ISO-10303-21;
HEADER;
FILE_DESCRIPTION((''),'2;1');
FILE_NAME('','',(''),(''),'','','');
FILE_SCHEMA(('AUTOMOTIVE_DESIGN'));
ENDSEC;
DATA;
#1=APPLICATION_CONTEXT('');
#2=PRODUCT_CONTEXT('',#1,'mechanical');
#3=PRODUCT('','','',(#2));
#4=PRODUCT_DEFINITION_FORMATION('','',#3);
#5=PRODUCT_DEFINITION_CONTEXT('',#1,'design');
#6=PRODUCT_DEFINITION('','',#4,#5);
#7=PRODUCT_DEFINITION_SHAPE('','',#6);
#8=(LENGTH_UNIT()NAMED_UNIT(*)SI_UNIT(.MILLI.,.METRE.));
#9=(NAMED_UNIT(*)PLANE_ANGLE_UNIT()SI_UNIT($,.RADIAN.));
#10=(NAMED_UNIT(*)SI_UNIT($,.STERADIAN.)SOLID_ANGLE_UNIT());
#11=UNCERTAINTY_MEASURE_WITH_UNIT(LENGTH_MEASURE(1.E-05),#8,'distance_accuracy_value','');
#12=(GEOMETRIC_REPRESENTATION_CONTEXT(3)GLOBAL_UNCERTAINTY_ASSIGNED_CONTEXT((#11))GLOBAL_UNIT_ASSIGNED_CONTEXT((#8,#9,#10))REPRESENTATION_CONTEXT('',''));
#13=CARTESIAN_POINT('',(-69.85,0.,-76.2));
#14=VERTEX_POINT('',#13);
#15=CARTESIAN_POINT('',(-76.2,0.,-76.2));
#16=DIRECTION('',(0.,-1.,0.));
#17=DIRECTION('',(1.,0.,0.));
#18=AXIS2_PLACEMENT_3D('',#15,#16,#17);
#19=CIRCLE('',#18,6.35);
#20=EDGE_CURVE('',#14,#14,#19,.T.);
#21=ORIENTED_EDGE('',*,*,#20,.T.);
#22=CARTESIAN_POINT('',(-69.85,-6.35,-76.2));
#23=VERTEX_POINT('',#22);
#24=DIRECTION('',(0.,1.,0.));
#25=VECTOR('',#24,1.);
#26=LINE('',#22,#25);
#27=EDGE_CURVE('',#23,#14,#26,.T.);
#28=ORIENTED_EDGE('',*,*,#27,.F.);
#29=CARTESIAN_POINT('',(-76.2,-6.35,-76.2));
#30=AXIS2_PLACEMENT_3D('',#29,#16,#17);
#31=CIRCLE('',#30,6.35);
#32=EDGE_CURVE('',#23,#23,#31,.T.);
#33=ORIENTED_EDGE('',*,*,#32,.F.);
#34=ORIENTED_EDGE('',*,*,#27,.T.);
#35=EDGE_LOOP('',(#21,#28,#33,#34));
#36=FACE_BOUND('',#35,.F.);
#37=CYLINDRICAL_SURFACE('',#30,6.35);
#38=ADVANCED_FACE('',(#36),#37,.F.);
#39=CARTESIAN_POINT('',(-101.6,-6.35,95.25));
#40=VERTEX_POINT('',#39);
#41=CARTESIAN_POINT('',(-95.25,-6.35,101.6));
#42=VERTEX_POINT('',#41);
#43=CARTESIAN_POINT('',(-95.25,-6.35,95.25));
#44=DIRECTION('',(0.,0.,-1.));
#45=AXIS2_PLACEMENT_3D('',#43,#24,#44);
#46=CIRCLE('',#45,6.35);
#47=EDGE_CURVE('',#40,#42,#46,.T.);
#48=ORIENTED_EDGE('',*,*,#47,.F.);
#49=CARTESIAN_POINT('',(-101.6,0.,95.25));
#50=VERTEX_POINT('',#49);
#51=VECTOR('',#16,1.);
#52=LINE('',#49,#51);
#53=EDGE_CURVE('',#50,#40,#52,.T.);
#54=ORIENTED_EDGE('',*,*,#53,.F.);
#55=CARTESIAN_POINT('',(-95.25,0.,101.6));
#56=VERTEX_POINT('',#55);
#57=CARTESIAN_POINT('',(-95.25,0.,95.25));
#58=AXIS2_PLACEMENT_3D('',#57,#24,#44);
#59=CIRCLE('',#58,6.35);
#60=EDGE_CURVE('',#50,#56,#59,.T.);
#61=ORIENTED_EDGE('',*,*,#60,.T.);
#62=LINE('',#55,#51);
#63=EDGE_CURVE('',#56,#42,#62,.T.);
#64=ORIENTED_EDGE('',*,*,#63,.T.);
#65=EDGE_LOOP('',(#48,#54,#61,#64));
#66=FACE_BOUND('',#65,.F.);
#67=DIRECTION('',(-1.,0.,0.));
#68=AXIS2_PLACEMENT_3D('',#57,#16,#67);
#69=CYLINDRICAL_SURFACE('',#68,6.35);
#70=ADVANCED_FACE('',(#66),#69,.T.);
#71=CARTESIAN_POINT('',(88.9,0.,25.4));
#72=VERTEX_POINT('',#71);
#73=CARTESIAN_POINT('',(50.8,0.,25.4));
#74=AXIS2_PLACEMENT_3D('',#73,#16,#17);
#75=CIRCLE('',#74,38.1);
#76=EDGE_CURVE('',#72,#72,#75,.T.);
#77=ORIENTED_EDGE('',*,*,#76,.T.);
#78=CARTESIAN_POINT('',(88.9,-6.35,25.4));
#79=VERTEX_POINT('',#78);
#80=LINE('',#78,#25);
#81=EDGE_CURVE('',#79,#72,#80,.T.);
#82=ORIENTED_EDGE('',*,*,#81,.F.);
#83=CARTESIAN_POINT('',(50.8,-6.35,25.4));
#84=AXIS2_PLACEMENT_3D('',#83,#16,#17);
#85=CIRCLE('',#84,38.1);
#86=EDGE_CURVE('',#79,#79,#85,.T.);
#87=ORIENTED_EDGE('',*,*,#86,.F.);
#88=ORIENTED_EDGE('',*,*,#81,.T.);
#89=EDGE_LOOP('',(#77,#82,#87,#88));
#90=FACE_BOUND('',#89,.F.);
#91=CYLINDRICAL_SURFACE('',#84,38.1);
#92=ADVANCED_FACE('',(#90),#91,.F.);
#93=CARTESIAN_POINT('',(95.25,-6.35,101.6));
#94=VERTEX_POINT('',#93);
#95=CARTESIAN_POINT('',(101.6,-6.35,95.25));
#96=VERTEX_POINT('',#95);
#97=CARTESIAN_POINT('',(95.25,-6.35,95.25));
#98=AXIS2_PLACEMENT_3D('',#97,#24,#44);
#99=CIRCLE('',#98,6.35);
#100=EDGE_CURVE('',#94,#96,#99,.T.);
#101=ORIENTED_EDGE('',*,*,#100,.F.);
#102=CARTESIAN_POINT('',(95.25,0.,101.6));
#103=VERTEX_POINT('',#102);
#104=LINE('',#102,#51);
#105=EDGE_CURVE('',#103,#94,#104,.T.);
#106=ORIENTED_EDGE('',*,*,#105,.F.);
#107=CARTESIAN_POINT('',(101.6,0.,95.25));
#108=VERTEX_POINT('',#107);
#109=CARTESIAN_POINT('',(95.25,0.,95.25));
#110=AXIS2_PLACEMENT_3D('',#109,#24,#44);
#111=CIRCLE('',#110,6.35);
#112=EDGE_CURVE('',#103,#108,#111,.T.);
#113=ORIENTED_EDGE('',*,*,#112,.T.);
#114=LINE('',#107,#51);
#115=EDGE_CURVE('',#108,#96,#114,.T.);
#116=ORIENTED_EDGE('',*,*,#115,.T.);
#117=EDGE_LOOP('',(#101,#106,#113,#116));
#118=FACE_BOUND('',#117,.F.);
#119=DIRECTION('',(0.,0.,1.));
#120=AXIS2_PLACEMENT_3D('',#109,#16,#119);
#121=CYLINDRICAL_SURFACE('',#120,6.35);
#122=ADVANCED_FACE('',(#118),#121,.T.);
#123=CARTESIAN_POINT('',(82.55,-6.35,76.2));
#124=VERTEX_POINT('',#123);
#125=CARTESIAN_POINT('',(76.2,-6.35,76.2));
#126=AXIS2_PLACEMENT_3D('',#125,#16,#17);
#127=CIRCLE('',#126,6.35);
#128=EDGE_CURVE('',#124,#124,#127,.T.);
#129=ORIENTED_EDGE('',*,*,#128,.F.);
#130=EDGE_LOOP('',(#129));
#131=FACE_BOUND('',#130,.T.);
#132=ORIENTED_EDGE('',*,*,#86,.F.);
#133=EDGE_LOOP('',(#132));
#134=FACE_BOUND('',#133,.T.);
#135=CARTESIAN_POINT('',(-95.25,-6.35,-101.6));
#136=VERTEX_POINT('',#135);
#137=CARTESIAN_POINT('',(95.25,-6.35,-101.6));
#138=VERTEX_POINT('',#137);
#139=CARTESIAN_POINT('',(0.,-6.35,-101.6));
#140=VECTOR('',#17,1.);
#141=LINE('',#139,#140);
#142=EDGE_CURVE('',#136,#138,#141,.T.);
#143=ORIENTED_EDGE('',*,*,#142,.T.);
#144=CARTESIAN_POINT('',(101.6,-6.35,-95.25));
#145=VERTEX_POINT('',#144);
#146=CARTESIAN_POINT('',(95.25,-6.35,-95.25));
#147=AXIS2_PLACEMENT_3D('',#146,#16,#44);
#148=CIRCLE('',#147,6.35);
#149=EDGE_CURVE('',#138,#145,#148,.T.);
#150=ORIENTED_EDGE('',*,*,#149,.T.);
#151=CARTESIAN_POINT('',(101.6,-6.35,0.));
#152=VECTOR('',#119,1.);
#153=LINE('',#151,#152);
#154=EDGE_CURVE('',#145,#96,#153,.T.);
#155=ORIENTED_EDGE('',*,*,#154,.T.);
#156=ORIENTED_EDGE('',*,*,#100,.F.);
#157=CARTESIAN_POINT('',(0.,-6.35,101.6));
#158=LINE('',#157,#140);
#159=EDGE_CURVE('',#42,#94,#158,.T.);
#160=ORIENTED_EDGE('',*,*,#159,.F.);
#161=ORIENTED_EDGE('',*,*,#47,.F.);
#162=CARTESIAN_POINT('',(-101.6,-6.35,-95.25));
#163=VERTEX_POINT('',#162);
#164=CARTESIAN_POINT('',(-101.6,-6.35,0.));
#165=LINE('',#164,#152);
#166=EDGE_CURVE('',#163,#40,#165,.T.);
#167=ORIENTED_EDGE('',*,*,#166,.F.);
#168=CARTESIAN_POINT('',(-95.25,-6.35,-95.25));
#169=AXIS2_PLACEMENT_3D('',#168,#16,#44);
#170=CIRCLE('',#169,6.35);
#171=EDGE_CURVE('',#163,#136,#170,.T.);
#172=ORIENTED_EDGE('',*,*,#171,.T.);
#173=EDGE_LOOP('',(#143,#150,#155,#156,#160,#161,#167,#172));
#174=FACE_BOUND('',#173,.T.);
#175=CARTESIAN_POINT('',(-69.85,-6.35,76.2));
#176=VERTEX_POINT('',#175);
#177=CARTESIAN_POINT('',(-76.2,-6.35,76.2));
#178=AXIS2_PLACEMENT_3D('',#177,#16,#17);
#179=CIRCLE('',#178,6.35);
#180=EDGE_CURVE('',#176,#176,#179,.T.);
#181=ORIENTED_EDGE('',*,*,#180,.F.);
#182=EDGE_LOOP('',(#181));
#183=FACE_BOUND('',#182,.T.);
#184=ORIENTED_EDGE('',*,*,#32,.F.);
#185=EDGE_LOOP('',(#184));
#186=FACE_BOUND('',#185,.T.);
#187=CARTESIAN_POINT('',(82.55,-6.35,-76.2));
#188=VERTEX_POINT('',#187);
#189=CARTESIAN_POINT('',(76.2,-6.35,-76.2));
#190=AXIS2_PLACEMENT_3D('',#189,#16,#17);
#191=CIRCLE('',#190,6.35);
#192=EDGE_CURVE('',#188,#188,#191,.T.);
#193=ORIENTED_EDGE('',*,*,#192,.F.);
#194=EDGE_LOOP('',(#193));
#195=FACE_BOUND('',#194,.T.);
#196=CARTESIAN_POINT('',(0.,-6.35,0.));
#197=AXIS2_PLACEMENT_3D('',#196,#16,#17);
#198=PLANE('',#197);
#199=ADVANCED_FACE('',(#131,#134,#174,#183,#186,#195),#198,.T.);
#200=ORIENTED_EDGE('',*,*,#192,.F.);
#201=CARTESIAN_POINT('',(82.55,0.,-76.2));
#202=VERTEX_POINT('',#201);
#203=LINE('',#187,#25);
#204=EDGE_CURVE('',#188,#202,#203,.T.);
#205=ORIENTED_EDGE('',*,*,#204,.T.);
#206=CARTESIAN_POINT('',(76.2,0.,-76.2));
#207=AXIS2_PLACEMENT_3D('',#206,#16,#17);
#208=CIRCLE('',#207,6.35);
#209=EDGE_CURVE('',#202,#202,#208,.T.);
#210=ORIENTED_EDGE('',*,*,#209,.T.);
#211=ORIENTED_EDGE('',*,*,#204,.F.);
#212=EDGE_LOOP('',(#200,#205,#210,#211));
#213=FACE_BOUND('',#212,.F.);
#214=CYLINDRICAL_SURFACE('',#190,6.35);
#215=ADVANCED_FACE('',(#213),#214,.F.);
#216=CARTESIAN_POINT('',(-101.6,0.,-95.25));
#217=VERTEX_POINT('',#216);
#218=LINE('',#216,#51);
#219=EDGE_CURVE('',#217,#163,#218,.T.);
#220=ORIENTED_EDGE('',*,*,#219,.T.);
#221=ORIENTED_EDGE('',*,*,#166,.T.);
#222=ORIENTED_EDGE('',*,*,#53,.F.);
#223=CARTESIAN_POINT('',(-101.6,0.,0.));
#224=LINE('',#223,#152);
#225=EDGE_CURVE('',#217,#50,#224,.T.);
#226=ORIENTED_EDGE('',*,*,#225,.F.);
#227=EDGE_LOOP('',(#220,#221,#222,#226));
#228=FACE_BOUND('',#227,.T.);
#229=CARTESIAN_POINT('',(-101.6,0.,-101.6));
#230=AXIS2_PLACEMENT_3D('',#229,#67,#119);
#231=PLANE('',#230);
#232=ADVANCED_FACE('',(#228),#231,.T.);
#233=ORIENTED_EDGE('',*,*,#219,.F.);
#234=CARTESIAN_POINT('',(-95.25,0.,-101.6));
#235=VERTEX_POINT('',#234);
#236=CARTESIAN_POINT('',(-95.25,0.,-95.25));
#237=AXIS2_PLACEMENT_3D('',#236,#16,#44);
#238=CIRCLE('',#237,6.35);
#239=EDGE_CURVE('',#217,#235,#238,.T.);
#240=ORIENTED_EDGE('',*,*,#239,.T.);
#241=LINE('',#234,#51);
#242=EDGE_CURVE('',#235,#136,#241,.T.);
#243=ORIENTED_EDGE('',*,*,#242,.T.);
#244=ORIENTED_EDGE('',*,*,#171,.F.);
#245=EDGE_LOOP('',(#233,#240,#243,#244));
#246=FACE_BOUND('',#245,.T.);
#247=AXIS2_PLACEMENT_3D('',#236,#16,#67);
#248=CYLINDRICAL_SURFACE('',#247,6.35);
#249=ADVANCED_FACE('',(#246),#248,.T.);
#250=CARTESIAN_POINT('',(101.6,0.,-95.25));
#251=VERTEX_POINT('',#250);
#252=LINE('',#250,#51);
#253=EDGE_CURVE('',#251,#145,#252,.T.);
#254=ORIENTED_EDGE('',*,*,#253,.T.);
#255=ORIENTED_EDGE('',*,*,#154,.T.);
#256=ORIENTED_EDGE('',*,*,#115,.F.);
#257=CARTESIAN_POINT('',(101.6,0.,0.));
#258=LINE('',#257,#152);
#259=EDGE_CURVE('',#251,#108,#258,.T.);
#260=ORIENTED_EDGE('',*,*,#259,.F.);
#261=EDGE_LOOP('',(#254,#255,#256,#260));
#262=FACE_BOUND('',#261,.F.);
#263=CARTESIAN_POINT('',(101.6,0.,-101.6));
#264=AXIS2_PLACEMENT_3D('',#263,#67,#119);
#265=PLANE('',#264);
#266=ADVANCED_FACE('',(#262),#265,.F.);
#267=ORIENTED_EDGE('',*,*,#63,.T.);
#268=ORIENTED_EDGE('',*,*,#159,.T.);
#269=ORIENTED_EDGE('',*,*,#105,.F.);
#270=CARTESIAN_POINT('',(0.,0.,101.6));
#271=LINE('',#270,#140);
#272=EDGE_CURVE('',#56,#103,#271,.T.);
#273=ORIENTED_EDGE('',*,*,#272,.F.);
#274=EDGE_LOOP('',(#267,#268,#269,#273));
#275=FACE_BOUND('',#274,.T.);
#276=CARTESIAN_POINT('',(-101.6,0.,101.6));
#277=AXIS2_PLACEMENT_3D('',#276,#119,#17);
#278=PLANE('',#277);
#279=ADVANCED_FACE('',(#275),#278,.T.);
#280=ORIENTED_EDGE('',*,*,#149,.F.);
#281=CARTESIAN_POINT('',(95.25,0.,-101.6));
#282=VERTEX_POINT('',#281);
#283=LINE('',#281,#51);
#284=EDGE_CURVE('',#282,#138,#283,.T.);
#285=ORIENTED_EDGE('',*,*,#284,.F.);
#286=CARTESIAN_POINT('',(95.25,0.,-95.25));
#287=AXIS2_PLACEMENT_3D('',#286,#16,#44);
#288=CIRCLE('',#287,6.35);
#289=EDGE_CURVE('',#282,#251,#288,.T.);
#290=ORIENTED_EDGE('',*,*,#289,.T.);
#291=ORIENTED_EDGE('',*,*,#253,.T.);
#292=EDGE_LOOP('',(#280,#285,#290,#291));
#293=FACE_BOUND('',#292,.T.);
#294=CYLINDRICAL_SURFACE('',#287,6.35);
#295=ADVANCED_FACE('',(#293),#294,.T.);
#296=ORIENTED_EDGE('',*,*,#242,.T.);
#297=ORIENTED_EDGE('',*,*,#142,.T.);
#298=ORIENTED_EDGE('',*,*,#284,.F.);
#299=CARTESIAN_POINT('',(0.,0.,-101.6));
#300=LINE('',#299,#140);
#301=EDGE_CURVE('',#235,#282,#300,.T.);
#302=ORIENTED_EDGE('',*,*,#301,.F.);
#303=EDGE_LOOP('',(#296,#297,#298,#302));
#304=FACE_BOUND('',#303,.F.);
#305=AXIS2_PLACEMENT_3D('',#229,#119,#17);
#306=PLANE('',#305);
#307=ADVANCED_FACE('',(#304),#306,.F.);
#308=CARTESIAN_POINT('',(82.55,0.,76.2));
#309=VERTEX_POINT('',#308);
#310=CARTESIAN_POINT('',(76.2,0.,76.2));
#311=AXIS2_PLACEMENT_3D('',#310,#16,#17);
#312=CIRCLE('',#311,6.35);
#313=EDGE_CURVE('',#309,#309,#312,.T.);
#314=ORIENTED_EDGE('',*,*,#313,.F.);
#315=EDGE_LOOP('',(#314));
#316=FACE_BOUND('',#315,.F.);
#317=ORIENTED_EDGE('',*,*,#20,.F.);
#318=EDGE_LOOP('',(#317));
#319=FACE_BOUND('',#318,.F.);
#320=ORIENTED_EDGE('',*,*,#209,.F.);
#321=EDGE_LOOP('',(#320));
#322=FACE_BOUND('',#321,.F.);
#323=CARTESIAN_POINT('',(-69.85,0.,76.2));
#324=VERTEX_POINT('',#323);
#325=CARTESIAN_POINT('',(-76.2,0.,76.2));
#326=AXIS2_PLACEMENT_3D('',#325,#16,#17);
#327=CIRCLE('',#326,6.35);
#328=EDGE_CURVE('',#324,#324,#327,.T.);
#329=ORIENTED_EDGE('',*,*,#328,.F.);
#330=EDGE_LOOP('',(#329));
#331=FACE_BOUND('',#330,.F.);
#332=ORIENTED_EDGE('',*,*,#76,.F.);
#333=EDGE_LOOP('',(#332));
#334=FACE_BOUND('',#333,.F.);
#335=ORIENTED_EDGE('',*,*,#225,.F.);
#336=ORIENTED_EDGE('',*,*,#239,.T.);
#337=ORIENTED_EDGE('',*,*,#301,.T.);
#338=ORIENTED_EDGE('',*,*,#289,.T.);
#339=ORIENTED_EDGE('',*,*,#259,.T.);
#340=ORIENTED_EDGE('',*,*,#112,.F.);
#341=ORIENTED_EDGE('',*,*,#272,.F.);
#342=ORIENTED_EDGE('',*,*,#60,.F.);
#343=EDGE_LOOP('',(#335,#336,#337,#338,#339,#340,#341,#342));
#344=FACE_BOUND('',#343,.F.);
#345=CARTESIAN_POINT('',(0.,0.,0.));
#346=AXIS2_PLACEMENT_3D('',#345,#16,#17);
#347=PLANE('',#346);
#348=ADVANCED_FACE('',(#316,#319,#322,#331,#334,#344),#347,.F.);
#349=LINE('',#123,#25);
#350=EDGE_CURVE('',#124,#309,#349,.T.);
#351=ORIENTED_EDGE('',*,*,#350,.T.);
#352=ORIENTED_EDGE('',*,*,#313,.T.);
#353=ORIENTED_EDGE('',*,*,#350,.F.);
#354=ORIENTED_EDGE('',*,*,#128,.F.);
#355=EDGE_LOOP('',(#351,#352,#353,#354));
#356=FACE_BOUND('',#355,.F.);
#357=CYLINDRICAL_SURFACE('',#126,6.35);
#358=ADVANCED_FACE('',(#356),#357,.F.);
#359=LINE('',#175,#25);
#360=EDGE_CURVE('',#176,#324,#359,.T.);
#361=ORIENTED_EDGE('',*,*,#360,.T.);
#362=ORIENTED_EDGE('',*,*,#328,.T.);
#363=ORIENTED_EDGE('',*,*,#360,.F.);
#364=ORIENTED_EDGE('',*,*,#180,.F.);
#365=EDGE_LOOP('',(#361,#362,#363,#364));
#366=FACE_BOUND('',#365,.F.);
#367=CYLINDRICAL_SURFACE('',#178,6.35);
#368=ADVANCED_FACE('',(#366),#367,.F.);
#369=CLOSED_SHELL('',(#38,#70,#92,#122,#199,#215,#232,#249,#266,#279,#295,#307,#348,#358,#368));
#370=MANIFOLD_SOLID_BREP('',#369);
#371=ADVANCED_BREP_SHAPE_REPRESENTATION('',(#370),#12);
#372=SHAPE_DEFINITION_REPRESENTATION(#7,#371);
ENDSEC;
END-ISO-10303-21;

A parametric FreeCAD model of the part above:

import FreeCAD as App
import Part
import Sketcher

V = App.Vector
Q = App.Units.Quantity


def edges_at(feature, points):
    """Names of the edges that pass closest to the given points."""
    edges = feature.Shape.Edges
    near = lambda p: min(range(len(edges)), key=lambda i: edges[i].distToShape(Part.Vertex(*p))[0])
    return sorted({f"Edge{near(p) + 1}" for p in points})

doc = App.newDocument("Part")
params = doc.addObject("Spreadsheet::Sheet", "Params")
for row, (alias, value) in enumerate([
    ("sketch1_width", "8 in"),
    ("pad1_length", "0.25 in"),
    ("sketch2_diameter", "0.5 in"),
    ("pocket1_length", "1 in"),
    ("fillet_radius", "0.25 in"),
    ("sketch3_diameter", "3 in"),
    ("pocket2_length", "1 in"),
], start=1):
    params.set(f"A{row}", alias)
    params.set(f"B{row}", "=" + value)
    params.setAlias(f"B{row}", alias)

body = doc.addObject("PartDesign::Body", "Body")

# Sketch on XZ plane
sketch1 = body.newObject("Sketcher::SketchObject", "Sketch")
sketch1.AttachmentSupport = (doc.getObject("XZ_Plane"), [""])
sketch1.MapMode = "FlatFace"
sketch1.addGeometry([
    Part.LineSegment(V(-101.6, 101.6, 0), V(-101.6, -101.6, 0)),
    Part.LineSegment(V(-101.6, -101.6, 0), V(101.6, -101.6, 0)),
    Part.LineSegment(V(101.6, -101.6, 0), V(101.6, 101.6, 0)),
    Part.LineSegment(V(101.6, 101.6, 0), V(-101.6, 101.6, 0)),
], False)
sketch1.addConstraint([
    Sketcher.Constraint("Coincident", 0, 2, 1, 1),
    Sketcher.Constraint("Coincident", 1, 2, 2, 1),
    Sketcher.Constraint("Coincident", 2, 2, 3, 1),
    Sketcher.Constraint("Coincident", 3, 2, 0, 1),
    Sketcher.Constraint("Vertical", 0),
    Sketcher.Constraint("Horizontal", 1),
    Sketcher.Constraint("Vertical", 2),
    Sketcher.Constraint("Horizontal", 3),
    Sketcher.Constraint("Symmetric", 0, 2, 2, 2, -1, 1),
    Sketcher.Constraint("Equal", 3, 0),
    Sketcher.Constraint("DistanceX", 1, 1, 1, 2, Q("8 in")),
])
sketch1.setExpression("Constraints[10]", "Params.sketch1_width")
pad1 = body.newObject("PartDesign::Pad", "Pad")
pad1.Profile = sketch1
pad1.setExpression("Length", "Params.pad1_length")

# Sketch on XZ plane
sketch2 = body.newObject("Sketcher::SketchObject", "Sketch001")
sketch2.AttachmentSupport = (doc.getObject("XZ_Plane"), [""])
sketch2.MapMode = "FlatFace"
sketch2.AttachmentOffset = App.Placement(V(0, 0, 0.25 * 25.4), App.Rotation())
sketch2.addGeometry([
    Part.Circle(V(-76.2, 76.2, 0), V(0, 0, 1), 6.35),
    Part.Circle(V(76.2, 76.2, 0), V(0, 0, 1), 6.35),
    Part.Circle(V(-76.2, -76.2, 0), V(0, 0, 1), 6.35),
    Part.Circle(V(76.2, -76.2, 0), V(0, 0, 1), 6.35),
], False)
sketch2.addConstraint([
    Sketcher.Constraint("Equal", 0, 1),
    Sketcher.Constraint("Equal", 1, 2),
    Sketcher.Constraint("Equal", 2, 3),
    Sketcher.Constraint("Symmetric", 1, 3, 2, 3, -1, 1),
    Sketcher.Constraint("Symmetric", 0, 3, 3, 3, -1, 1),
    Sketcher.Constraint("Symmetric", 0, 3, 1, 3, -2),
    Sketcher.Constraint("Diameter", 0, Q("0.5 in")),
    Sketcher.Constraint("DistanceX", 0, 3, -1, 1, Q("3 in")),
    Sketcher.Constraint("DistanceY", -1, 1, 0, 3, Q("3 in")),
])
sketch2.setExpression("Constraints[6]", "Params.sketch2_diameter")
pocket1 = body.newObject("PartDesign::Pocket", "Pocket")
pocket1.Profile = sketch2
pocket1.setExpression("Length", "Params.pocket1_length")
doc.recompute()

fillet = body.newObject("PartDesign::Fillet", "Fillet")
fillet.Base = (pocket1, edges_at(pocket1, [
    (101.6, -3.175, 101.6),
    (-101.6, -3.175, 101.6),
    (-101.6, -3.175, -101.6),
    (101.6, -3.175, -101.6),
]))
fillet.setExpression("Radius", "Params.fillet_radius")

# Sketch on XZ plane
sketch3 = body.newObject("Sketcher::SketchObject", "Sketch002")
sketch3.AttachmentSupport = (doc.getObject("XZ_Plane"), [""])
sketch3.MapMode = "FlatFace"
sketch3.AttachmentOffset = App.Placement(V(0, 0, 0.25 * 25.4), App.Rotation())
sketch3.addGeometry(Part.Circle(V(50.8, 25.4, 0), V(0, 0, 1), 38.1), False)
sketch3.addConstraint([
    Sketcher.Constraint("Diameter", 0, Q("3 in")),
    Sketcher.Constraint("DistanceX", -1, 1, 0, 3, Q("2 in")),
    Sketcher.Constraint("DistanceY", -1, 1, 0, 3, Q("1 in")),
])
sketch3.setExpression("Constraints[0]", "Params.sketch3_diameter")
pocket2 = body.newObject("PartDesign::Pocket", "Pocket001")
pocket2.Profile = sketch3
pocket2.setExpression("Length", "Params.pocket2_length")

doc.recompute()
